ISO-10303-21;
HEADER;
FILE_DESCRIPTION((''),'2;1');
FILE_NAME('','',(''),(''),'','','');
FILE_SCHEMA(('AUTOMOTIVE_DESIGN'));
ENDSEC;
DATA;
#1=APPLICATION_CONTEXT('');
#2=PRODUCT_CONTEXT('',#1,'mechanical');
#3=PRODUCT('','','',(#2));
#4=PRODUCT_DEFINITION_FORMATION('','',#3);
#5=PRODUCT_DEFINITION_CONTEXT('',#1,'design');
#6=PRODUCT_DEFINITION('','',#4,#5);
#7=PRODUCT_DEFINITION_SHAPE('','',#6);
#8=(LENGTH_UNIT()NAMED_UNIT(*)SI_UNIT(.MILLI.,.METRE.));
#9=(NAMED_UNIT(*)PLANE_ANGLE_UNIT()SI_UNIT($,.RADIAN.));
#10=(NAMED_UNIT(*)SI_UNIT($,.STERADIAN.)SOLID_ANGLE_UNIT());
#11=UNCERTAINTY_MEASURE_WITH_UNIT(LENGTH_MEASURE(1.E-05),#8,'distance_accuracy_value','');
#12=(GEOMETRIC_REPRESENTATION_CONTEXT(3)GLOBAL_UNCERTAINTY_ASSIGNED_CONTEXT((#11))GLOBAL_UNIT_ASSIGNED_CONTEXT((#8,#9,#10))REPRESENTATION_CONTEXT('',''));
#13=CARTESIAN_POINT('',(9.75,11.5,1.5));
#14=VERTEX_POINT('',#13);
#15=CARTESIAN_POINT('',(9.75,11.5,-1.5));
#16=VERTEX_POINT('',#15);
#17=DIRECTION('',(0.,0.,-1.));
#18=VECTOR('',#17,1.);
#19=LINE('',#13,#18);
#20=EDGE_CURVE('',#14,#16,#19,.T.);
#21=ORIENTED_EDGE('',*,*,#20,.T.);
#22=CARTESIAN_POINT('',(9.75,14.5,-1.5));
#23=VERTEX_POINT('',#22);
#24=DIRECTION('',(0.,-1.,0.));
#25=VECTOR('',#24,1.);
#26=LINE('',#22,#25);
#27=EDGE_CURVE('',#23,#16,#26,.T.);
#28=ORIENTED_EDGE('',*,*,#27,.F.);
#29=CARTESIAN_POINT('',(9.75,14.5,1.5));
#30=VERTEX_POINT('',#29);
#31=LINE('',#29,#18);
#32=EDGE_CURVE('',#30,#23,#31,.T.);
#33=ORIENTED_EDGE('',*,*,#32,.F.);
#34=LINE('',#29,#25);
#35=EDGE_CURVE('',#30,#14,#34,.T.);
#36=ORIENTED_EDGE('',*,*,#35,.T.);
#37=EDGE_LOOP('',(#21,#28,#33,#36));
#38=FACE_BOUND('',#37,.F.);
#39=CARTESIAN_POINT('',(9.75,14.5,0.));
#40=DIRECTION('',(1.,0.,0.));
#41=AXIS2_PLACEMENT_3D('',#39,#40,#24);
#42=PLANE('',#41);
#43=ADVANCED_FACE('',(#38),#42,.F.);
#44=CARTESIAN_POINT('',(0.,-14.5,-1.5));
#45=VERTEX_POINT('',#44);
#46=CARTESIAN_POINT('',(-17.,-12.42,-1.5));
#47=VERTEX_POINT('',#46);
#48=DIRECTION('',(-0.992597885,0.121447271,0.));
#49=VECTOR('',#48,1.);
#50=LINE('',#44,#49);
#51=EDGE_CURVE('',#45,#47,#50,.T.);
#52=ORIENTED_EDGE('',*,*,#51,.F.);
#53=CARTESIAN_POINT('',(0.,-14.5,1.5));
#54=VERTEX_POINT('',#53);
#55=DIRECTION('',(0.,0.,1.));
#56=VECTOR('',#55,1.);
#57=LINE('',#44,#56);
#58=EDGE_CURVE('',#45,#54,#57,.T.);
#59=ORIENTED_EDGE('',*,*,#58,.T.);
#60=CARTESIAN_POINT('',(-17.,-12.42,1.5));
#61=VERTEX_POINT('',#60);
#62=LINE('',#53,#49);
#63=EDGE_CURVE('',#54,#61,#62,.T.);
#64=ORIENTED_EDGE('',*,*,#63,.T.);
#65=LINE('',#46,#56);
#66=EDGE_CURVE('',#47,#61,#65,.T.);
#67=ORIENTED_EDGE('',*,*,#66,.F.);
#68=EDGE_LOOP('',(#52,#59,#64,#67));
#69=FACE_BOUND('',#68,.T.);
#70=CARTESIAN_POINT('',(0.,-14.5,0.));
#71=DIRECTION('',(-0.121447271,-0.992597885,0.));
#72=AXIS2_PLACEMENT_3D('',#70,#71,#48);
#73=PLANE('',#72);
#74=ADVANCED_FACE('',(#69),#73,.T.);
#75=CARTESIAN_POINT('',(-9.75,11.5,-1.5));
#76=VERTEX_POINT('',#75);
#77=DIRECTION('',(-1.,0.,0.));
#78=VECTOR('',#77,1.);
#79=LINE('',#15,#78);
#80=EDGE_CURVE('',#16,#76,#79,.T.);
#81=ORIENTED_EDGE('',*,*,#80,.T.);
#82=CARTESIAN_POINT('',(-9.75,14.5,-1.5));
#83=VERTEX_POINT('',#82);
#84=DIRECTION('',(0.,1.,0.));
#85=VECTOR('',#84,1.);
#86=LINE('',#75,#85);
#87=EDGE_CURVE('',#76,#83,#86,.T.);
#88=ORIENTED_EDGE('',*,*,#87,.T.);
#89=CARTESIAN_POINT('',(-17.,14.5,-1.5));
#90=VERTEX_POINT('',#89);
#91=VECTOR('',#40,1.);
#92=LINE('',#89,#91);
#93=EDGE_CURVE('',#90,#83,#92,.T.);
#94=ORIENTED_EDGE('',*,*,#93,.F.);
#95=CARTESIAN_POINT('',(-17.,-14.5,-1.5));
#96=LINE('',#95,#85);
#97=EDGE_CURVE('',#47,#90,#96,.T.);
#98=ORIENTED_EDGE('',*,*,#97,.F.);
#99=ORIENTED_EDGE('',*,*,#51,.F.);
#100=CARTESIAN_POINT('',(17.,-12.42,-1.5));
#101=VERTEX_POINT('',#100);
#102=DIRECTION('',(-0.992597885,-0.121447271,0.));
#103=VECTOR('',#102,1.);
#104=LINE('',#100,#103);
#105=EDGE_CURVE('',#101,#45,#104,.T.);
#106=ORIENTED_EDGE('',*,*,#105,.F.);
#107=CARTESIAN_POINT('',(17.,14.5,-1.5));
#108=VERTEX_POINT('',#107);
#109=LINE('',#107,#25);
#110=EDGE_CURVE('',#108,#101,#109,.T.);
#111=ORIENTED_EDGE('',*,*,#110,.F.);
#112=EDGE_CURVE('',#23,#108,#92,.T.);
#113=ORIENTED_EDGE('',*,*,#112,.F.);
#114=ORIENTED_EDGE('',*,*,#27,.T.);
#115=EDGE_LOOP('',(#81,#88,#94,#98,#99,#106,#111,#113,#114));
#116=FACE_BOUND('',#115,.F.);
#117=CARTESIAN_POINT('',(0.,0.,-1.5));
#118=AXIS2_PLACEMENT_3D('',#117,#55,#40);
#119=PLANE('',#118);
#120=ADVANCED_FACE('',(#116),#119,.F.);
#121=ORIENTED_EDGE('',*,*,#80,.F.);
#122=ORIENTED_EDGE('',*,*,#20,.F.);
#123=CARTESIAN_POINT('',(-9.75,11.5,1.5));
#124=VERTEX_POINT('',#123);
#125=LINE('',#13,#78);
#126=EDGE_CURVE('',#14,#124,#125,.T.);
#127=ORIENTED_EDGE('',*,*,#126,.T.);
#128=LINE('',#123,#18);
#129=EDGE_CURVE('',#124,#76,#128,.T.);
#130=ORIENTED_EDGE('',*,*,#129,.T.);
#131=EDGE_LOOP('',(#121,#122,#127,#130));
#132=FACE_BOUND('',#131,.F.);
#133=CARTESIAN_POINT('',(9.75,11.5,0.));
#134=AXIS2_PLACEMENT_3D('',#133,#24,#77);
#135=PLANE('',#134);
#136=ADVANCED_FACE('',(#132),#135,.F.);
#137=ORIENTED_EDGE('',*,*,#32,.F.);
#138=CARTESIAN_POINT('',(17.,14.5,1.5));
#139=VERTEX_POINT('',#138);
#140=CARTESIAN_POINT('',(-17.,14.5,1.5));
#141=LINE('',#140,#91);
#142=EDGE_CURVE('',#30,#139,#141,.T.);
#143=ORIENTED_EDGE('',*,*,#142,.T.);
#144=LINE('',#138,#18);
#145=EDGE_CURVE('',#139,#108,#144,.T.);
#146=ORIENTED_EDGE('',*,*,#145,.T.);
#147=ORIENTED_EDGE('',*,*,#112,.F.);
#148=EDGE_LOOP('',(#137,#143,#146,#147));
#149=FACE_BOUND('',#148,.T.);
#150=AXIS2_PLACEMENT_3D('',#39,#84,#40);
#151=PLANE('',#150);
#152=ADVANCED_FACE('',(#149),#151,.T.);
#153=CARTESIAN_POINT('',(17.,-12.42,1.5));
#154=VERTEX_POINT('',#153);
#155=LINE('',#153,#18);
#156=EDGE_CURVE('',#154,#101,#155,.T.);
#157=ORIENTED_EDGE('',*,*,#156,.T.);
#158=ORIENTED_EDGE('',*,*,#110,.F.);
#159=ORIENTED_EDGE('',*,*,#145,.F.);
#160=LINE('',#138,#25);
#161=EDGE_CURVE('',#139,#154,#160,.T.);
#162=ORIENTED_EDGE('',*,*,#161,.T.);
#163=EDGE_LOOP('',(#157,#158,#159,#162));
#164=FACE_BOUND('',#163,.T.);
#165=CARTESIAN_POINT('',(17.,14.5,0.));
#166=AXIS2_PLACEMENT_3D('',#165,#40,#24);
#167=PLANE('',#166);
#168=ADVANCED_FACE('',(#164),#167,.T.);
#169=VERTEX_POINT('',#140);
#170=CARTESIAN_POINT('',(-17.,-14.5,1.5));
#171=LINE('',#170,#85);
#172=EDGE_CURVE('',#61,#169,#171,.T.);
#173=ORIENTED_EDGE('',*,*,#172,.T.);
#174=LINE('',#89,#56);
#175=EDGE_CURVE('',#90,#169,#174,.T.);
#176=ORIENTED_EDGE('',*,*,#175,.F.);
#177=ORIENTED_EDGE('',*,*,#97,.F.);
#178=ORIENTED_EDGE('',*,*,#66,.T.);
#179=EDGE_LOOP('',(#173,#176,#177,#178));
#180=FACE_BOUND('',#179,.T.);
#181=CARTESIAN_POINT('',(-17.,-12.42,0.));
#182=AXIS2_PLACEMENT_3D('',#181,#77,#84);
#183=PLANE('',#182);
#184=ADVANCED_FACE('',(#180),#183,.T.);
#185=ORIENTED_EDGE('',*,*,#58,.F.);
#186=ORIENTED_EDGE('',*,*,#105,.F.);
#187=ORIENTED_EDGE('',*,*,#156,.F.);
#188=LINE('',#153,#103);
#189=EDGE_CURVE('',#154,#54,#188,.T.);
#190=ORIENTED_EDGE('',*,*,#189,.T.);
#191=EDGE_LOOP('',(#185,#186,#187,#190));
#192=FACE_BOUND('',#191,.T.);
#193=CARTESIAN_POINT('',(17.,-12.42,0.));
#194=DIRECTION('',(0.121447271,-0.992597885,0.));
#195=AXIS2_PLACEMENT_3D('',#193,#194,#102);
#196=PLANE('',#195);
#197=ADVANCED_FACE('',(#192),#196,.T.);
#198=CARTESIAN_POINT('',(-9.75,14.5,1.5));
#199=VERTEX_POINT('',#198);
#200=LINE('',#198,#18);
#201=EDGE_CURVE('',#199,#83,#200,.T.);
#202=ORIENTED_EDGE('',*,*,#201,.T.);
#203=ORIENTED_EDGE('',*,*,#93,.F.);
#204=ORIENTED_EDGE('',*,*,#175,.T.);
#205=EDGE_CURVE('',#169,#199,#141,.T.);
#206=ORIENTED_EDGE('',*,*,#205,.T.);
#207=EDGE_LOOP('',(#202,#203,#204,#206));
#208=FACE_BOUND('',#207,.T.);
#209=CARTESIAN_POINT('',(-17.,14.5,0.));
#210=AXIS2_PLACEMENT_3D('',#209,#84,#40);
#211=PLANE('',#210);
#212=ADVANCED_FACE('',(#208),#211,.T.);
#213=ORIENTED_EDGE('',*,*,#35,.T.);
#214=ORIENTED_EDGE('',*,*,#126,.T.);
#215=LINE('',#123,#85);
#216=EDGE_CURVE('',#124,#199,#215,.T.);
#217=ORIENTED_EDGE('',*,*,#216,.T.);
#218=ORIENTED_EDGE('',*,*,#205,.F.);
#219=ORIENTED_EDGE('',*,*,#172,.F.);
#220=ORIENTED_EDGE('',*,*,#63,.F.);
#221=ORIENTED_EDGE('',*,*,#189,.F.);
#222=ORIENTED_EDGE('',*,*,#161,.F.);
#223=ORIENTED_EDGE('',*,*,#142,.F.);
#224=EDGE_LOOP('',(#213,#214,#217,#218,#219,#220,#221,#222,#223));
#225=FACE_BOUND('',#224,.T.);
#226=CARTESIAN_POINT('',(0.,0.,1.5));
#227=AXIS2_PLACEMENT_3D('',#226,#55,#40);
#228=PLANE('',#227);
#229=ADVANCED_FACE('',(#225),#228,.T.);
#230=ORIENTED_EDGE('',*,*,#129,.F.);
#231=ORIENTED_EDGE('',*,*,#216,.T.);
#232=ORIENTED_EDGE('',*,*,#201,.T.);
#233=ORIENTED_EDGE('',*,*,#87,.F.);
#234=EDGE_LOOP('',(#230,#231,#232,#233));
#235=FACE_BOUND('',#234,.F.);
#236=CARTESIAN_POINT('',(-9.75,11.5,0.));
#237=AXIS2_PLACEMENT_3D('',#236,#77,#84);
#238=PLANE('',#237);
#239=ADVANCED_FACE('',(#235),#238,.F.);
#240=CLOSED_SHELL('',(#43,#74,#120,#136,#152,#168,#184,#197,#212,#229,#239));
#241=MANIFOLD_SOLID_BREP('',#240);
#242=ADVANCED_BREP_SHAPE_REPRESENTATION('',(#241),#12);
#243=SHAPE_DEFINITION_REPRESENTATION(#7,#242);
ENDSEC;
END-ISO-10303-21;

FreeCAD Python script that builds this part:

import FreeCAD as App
import Part
import Sketcher
Q = App.Units.Quantity

doc = App.newDocument("Part")
body = doc.addObject("PartDesign::Body", "Body")

# Sketch on XY plane
sketch1 = body.newObject("Sketcher::SketchObject", "Sketch")
sketch1.AttachmentSupport = (doc.getObject("XY_Plane"), [""])
sketch1.MapMode = "FlatFace"
sketch1.addGeometry(Part.LineSegment(App.Vector(-9.8, 14.5, 0), App.Vector(-17, 14.5, 0)), False)
sketch1.addGeometry(Part.LineSegment(App.Vector(-17, 14.5, 0), App.Vector(-17, -12.4, 0)), False)
sketch1.addGeometry(Part.LineSegment(App.Vector(-17, -12.4, 0), App.Vector(0, -14.5, 0)), False)
sketch1.addGeometry(Part.LineSegment(App.Vector(0, -14.5, 0), App.Vector(17, -12.4, 0)), False)
sketch1.addGeometry(Part.LineSegment(App.Vector(17, -12.4, 0), App.Vector(17, 14.5, 0)), False)
sketch1.addGeometry(Part.LineSegment(App.Vector(17, 14.5, 0), App.Vector(9.8, 14.5, 0)), False)
sketch1.addGeometry(Part.LineSegment(App.Vector(9.8, 14.5, 0), App.Vector(9.8, 11.5, 0)), False)
sketch1.addGeometry(Part.LineSegment(App.Vector(9.8, 11.5, 0), App.Vector(-9.8, 11.5, 0)), False)
sketch1.addGeometry(Part.LineSegment(App.Vector(-9.8, 11.5, 0), App.Vector(-9.8, 14.5, 0)), False)
sketch1.addConstraint(Sketcher.Constraint("Coincident", 0, 2, 1, 1))
sketch1.addConstraint(Sketcher.Constraint("Coincident", 1, 2, 2, 1))
sketch1.addConstraint(Sketcher.Constraint("Coincident", 2, 2, 3, 1))
sketch1.addConstraint(Sketcher.Constraint("Coincident", 3, 2, 4, 1))
sketch1.addConstraint(Sketcher.Constraint("Coincident", 4, 2, 5, 1))
sketch1.addConstraint(Sketcher.Constraint("Coincident", 5, 2, 6, 1))
sketch1.addConstraint(Sketcher.Constraint("Coincident", 6, 2, 7, 1))
sketch1.addConstraint(Sketcher.Constraint("Coincident", 7, 2, 8, 1))
sketch1.addConstraint(Sketcher.Constraint("Coincident", 8, 2, 0, 1))
sketch1.addConstraint(Sketcher.Constraint("Horizontal", 0))
sketch1.addConstraint(Sketcher.Constraint("Vertical", 1))
sketch1.addConstraint(Sketcher.Constraint("Vertical", 4))
sketch1.addConstraint(Sketcher.Constraint("Horizontal", 5))
sketch1.addConstraint(Sketcher.Constraint("Vertical", 6))
sketch1.addConstraint(Sketcher.Constraint("Horizontal", 7))
sketch1.addConstraint(Sketcher.Constraint("Vertical", 8))
sketch1.addConstraint(Sketcher.Constraint("Symmetric", 1, 2, 3, 2, -2))
sketch1.addConstraint(Sketcher.Constraint("Symmetric", 5, 2, 8, 2, -2))
sketch1.addConstraint(Sketcher.Constraint("PointOnObject", 2, 2, -2))
sketch1.addConstraint(Sketcher.Constraint("DistanceY", 6, 2, 6, 1, Q("3 mm")))
sketch1.addConstraint(Sketcher.Constraint("DistanceX", 7, 2, 7, 1, Q("19.5 mm")))
sketch1.addConstraint(Sketcher.Constraint("DistanceY", 2, 2, 0, 2, Q("29 mm")))
sketch1.addConstraint(Sketcher.Constraint("DistanceX", 1, 2, 3, 2, Q("34 mm")))
sketch1.addConstraint(Sketcher.Constraint("DistanceY", 2, 2, 1, 2, Q("2.08 mm")))
sketch1.addConstraint(Sketcher.Constraint("DistanceY", -1, 1, 0, 2, Q("14.5 mm")))
pad1 = body.newObject("PartDesign::Pad", "Pad")
pad1.Profile = sketch1
pad1.Length = 3
pad1.Midplane = True

doc.recompute()
